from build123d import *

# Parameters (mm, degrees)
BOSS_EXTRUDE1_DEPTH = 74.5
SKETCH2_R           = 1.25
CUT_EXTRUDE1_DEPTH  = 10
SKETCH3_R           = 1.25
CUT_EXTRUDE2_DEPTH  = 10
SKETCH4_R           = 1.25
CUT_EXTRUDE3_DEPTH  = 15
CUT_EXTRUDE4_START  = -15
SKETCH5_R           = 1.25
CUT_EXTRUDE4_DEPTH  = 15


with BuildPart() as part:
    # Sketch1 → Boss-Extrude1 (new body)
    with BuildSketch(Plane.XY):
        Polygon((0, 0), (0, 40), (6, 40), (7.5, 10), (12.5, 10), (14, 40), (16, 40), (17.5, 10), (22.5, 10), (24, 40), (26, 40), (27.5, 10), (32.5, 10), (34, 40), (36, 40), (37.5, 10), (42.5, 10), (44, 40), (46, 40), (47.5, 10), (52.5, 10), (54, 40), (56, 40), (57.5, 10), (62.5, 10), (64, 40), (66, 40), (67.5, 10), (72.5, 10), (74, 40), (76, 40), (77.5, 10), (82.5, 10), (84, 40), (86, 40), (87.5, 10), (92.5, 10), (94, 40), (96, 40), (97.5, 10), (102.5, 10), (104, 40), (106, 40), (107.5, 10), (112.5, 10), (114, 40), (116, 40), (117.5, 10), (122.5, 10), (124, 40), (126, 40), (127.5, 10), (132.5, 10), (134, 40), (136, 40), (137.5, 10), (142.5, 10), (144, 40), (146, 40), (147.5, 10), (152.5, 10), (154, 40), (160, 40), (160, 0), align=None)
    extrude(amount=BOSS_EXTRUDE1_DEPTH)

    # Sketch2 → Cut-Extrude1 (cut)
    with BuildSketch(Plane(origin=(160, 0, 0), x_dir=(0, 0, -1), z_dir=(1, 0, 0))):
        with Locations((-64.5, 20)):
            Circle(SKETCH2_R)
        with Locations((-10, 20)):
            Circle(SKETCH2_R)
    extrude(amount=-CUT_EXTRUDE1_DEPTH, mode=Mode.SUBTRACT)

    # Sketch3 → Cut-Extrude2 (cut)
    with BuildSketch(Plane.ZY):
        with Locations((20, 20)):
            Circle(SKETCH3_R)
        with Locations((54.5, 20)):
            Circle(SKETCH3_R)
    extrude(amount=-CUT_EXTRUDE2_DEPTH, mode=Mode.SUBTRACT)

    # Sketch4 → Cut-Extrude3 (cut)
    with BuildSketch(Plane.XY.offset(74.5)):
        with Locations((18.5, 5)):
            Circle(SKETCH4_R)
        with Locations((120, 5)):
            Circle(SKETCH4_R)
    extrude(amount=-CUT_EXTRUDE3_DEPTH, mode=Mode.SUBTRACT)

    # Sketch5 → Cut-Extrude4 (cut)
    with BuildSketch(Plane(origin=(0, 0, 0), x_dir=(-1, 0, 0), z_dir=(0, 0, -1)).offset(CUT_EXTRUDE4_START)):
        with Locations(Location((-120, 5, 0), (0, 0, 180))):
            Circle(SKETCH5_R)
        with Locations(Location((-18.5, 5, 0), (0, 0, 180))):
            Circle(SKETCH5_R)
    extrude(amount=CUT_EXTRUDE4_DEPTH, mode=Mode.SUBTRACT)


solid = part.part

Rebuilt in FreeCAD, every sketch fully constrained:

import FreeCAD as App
import Part
import Sketcher
from FreeCAD import Vector
Q = App.Units.Quantity


def add_polygon(sketch, points):
    """Adds a closed chain of lines whose ends are joined by coincident constraints."""
    first, n = sketch.GeometryCount, len(points)
    for a, b in zip(points, points[1:] + points[:1]):
        sketch.addGeometry(Part.LineSegment(App.Vector(*a, 0), App.Vector(*b, 0)), False)
    for i in range(n):
        sketch.addConstraint(Sketcher.Constraint("Coincident", first + i, 2, first + (i + 1) % n, 1))

doc = App.newDocument("Part")
body = doc.addObject("PartDesign::Body", "Body")

sketch1 = body.newObject("Sketcher::SketchObject", "Sketch")
sketch1.AttachmentSupport = (doc.getObject("XY_Plane"), [""])
sketch1.MapMode = "FlatFace"
add_polygon(sketch1, [(0, 40), (0, 0), (160, 0), (160, 40), (154, 40), (152.5, 10), (147.5, 10), (146, 40), (144, 40), (142.5, 10), (137.5, 10), (136, 40), (134, 40), (132.5, 10), (127.5, 10), (126, 40), (124, 40), (122.5, 10), (117.5, 10), (116, 40), (114, 40), (112.5, 10), (107.5, 10), (106, 40), (104, 40), (102.5, 10), (97.5, 10), (96, 40), (94, 40), (92.5, 10), (87.5, 10), (86, 40), (84, 40), (82.5, 10), (77.5, 10), (76, 40), (74, 40), (72.5, 10), (67.5, 10), (66, 40), (64, 40), (62.5, 10), (57.5, 10), (56, 40), (54, 40), (52.5, 10), (47.5, 10), (46, 40), (44, 40), (42.5, 10), (37.5, 10), (36, 40), (34, 40), (32.5, 10), (27.5, 10), (26, 40), (24, 40), (22.5, 10), (17.5, 10), (16, 40), (14, 40), (12.5, 10), (7.5, 10), (6, 40)])
sketch1.addConstraint(Sketcher.Constraint("Vertical", 0))
sketch1.addConstraint(Sketcher.Constraint("Horizontal", 1))
sketch1.addConstraint(Sketcher.Constraint("Vertical", 2))
sketch1.addConstraint(Sketcher.Constraint("Horizontal", 3))
sketch1.addConstraint(Sketcher.Constraint("Horizontal", 5))
sketch1.addConstraint(Sketcher.Constraint("Horizontal", 7))
sketch1.addConstraint(Sketcher.Constraint("Horizontal", 9))
sketch1.addConstraint(Sketcher.Constraint("Horizontal", 11))
sketch1.addConstraint(Sketcher.Constraint("Horizontal", 13))
sketch1.addConstraint(Sketcher.Constraint("Horizontal", 15))
sketch1.addConstraint(Sketcher.Constraint("Horizontal", 17))
sketch1.addConstraint(Sketcher.Constraint("Horizontal", 19))
sketch1.addConstraint(Sketcher.Constraint("Horizontal", 21))
sketch1.addConstraint(Sketcher.Constraint("Horizontal", 23))
sketch1.addConstraint(Sketcher.Constraint("Horizontal", 25))
sketch1.addConstraint(Sketcher.Constraint("Horizontal", 27))
sketch1.addConstraint(Sketcher.Constraint("Horizontal", 29))
sketch1.addConstraint(Sketcher.Constraint("Horizontal", 31))
sketch1.addConstraint(Sketcher.Constraint("Horizontal", 33))
sketch1.addConstraint(Sketcher.Constraint("Horizontal", 35))
sketch1.addConstraint(Sketcher.Constraint("Horizontal", 37))
sketch1.addConstraint(Sketcher.Constraint("Horizontal", 39))
sketch1.addConstraint(Sketcher.Constraint("Horizontal", 41))
sketch1.addConstraint(Sketcher.Constraint("Horizontal", 43))
sketch1.addConstraint(Sketcher.Constraint("Horizontal", 45))
sketch1.addConstraint(Sketcher.Constraint("Horizontal", 47))
sketch1.addConstraint(Sketcher.Constraint("Horizontal", 49))
sketch1.addConstraint(Sketcher.Constraint("Horizontal", 51))
sketch1.addConstraint(Sketcher.Constraint("Horizontal", 53))
sketch1.addConstraint(Sketcher.Constraint("Horizontal", 55))
sketch1.addConstraint(Sketcher.Constraint("Horizontal", 57))
sketch1.addConstraint(Sketcher.Constraint("Horizontal", 59))
sketch1.addConstraint(Sketcher.Constraint("Horizontal", 61))
sketch1.addConstraint(Sketcher.Constraint("Horizontal", 63))
sketch1.addConstraint(Sketcher.Constraint("Coincident", 0, 2, -1, 1))
sketch1.addConstraint(Sketcher.Constraint("Parallel", 4, 8))
sketch1.addConstraint(Sketcher.Constraint("Parallel", 6, 10))
sketch1.addConstraint(Sketcher.Constraint("Parallel", 8, 12))
sketch1.addConstraint(Sketcher.Constraint("Parallel", 10, 14))
sketch1.addConstraint(Sketcher.Constraint("Parallel", 12, 16))
sketch1.addConstraint(Sketcher.Constraint("Parallel", 14, 18))
sketch1.addConstraint(Sketcher.Constraint("Parallel", 16, 20))
sketch1.addConstraint(Sketcher.Constraint("Parallel", 18, 22))
sketch1.addConstraint(Sketcher.Constraint("Parallel", 20, 24))
sketch1.addConstraint(Sketcher.Constraint("Parallel", 22, 26))
sketch1.addConstraint(Sketcher.Constraint("Parallel", 24, 28))
sketch1.addConstraint(Sketcher.Constraint("Parallel", 26, 30))
sketch1.addConstraint(Sketcher.Constraint("Parallel", 28, 32))
sketch1.addConstraint(Sketcher.Constraint("Parallel", 30, 34))
sketch1.addConstraint(Sketcher.Constraint("Parallel", 32, 36))
sketch1.addConstraint(Sketcher.Constraint("Parallel", 34, 38))
sketch1.addConstraint(Sketcher.Constraint("Parallel", 36, 40))
sketch1.addConstraint(Sketcher.Constraint("Parallel", 38, 42))
sketch1.addConstraint(Sketcher.Constraint("Parallel", 40, 44))
sketch1.addConstraint(Sketcher.Constraint("Parallel", 42, 46))
sketch1.addConstraint(Sketcher.Constraint("Parallel", 44, 48))
sketch1.addConstraint(Sketcher.Constraint("Parallel", 46, 50))
sketch1.addConstraint(Sketcher.Constraint("Parallel", 48, 52))
sketch1.addConstraint(Sketcher.Constraint("Parallel", 50, 54))
sketch1.addConstraint(Sketcher.Constraint("Parallel", 52, 56))
sketch1.addConstraint(Sketcher.Constraint("Parallel", 54, 58))
sketch1.addConstraint(Sketcher.Constraint("Parallel", 56, 60))
sketch1.addConstraint(Sketcher.Constraint("Parallel", 58, 62))
sketch1.addConstraint(Sketcher.Constraint("Horizontal", 3, 2, 6, 2))
sketch1.addConstraint(Sketcher.Constraint("Horizontal", 5, 2, 8, 2))
sketch1.addConstraint(Sketcher.Constraint("Horizontal", 7, 2, 10, 2))
sketch1.addConstraint(Sketcher.Constraint("Horizontal", 9, 2, 12, 2))
sketch1.addConstraint(Sketcher.Constraint("Horizontal", 11, 2, 14, 2))
sketch1.addConstraint(Sketcher.Constraint("Horizontal", 13, 2, 16, 2))
sketch1.addConstraint(Sketcher.Constraint("Horizontal", 15, 2, 18, 2))
sketch1.addConstraint(Sketcher.Constraint("Horizontal", 17, 2, 20, 2))
sketch1.addConstraint(Sketcher.Constraint("Horizontal", 19, 2, 22, 2))
sketch1.addConstraint(Sketcher.Constraint("Horizontal", 21, 2, 24, 2))
sketch1.addConstraint(Sketcher.Constraint("Horizontal", 23, 2, 26, 2))
sketch1.addConstraint(Sketcher.Constraint("Horizontal", 25, 2, 28, 2))
sketch1.addConstraint(Sketcher.Constraint("Horizontal", 27, 2, 30, 2))
sketch1.addConstraint(Sketcher.Constraint("Horizontal", 29, 2, 32, 2))
sketch1.addConstraint(Sketcher.Constraint("Horizontal", 31, 2, 34, 2))
sketch1.addConstraint(Sketcher.Constraint("Horizontal", 33, 2, 36, 2))
sketch1.addConstraint(Sketcher.Constraint("Horizontal", 35, 2, 38, 2))
sketch1.addConstraint(Sketcher.Constraint("Horizontal", 37, 2, 40, 2))
sketch1.addConstraint(Sketcher.Constraint("Horizontal", 39, 2, 42, 2))
sketch1.addConstraint(Sketcher.Constraint("Horizontal", 41, 2, 44, 2))
sketch1.addConstraint(Sketcher.Constraint("Horizontal", 43, 2, 46, 2))
sketch1.addConstraint(Sketcher.Constraint("Horizontal", 45, 2, 48, 2))
sketch1.addConstraint(Sketcher.Constraint("Horizontal", 47, 2, 50, 2))
sketch1.addConstraint(Sketcher.Constraint("Horizontal", 49, 2, 52, 2))
sketch1.addConstraint(Sketcher.Constraint("Horizontal", 51, 2, 54, 2))
sketch1.addConstraint(Sketcher.Constraint("Horizontal", 53, 2, 56, 2))
sketch1.addConstraint(Sketcher.Constraint("Horizontal", 55, 2, 58, 2))
sketch1.addConstraint(Sketcher.Constraint("Horizontal", 57, 2, 60, 2))
sketch1.addConstraint(Sketcher.Constraint("Horizontal", 59, 2, 62, 2))
sketch1.addConstraint(Sketcher.Constraint("Equal", 5, 9))
sketch1.addConstraint(Sketcher.Constraint("Equal", 7, 11))
sketch1.addConstraint(Sketcher.Constraint("Equal", 9, 13))
sketch1.addConstraint(Sketcher.Constraint("Equal", 11, 15))
sketch1.addConstraint(Sketcher.Constraint("Equal", 13, 17))
sketch1.addConstraint(Sketcher.Constraint("Equal", 15, 19))
sketch1.addConstraint(Sketcher.Constraint("Equal", 17, 21))
sketch1.addConstraint(Sketcher.Constraint("Equal", 19, 23))
sketch1.addConstraint(Sketcher.Constraint("Equal", 21, 25))
sketch1.addConstraint(Sketcher.Constraint("Equal", 23, 27))
sketch1.addConstraint(Sketcher.Constraint("Equal", 25, 29))
sketch1.addConstraint(Sketcher.Constraint("Equal", 27, 31))
sketch1.addConstraint(Sketcher.Constraint("Equal", 29, 33))
sketch1.addConstraint(Sketcher.Constraint("Equal", 31, 35))
sketch1.addConstraint(Sketcher.Constraint("Equal", 33, 37))
sketch1.addConstraint(Sketcher.Constraint("Equal", 35, 39))
sketch1.addConstraint(Sketcher.Constraint("Equal", 37, 41))
sketch1.addConstraint(Sketcher.Constraint("Equal", 39, 43))
sketch1.addConstraint(Sketcher.Constraint("Equal", 41, 45))
sketch1.addConstraint(Sketcher.Constraint("Equal", 43, 47))
sketch1.addConstraint(Sketcher.Constraint("Equal", 45, 49))
sketch1.addConstraint(Sketcher.Constraint("Equal", 47, 51))
sketch1.addConstraint(Sketcher.Constraint("Equal", 49, 53))
sketch1.addConstraint(Sketcher.Constraint("Equal", 51, 55))
sketch1.addConstraint(Sketcher.Constraint("Equal", 53, 57))
sketch1.addConstraint(Sketcher.Constraint("Equal", 55, 59))
sketch1.addConstraint(Sketcher.Constraint("Equal", 57, 61))
sketch1.addConstraint(Sketcher.Constraint("Equal", 3, 63))
sketch1.addConstraint(Sketcher.Constraint("Equal", 4, 6))
sketch1.addConstraint(Sketcher.Constraint("DistanceX", 1, 1, 1, 2, Q("160 mm")))
sketch1.addConstraint(Sketcher.Constraint("DistanceX", 3, 2, 3, 1, Q("6 mm")))
sketch1.addConstraint(Sketcher.Constraint("DistanceX", 5, 2, 5, 1, Q("5 mm")))
sketch1.addConstraint(Sketcher.Constraint("DistanceX", 7, 2, 7, 1, Q("2 mm")))
sketch1.addConstraint(Sketcher.Constraint("DistanceY", 0, 2, 0, 1, Q("40 mm")))
sketch1.addConstraint(Sketcher.Constraint("DistanceY", -1, 1, 4, 2, Q("10 mm")))
pad1 = body.newObject("PartDesign::Pad", "Pad")
pad1.Profile = sketch1
pad1.Length = 74.5

sketch2 = body.newObject("Sketcher::SketchObject", "Sketch001")
sketch2.AttachmentSupport = (doc.getObject("YZ_Plane"), [""])
sketch2.MapMode = "FlatFace"
sketch2.AttachmentOffset = App.Placement(Vector(0, 0, 160), App.Rotation())
sketch2.addGeometry(Part.Circle(Vector(20, 64.5, 0), Vector(0, 0, 1), 1.25), False)
sketch2.addGeometry(Part.Circle(Vector(20, 10, 0), Vector(0, 0, 1), 1.25), False)
sketch2.addConstraint(Sketcher.Constraint("Equal", 0, 1))
sketch2.addConstraint(Sketcher.Constraint("Vertical", 0, 3, 1, 3))
sketch2.addConstraint(Sketcher.Constraint("Diameter", 0, Q("2.5 mm")))
sketch2.addConstraint(Sketcher.Constraint("DistanceX", -1, 1, 0, 3, Q("20 mm")))
sketch2.addConstraint(Sketcher.Constraint("DistanceY", -1, 1, 1, 3, Q("10 mm")))
sketch2.addConstraint(Sketcher.Constraint("DistanceY", -1, 1, 0, 3, Q("64.5 mm")))
pocket1 = body.newObject("PartDesign::Pocket", "Pocket")
pocket1.Profile = sketch2
pocket1.Length = 10

sketch3 = body.newObject("Sketcher::SketchObject", "Sketch002")
sketch3.AttachmentSupport = (doc.getObject("YZ_Plane"), [""])
sketch3.MapMode = "FlatFace"
sketch3.addGeometry(Part.Circle(Vector(20, 20, 0), Vector(0, 0, 1), 1.25), False)
sketch3.addGeometry(Part.Circle(Vector(20, 54.5, 0), Vector(0, 0, 1), 1.25), False)
sketch3.addConstraint(Sketcher.Constraint("Equal", 0, 1))
sketch3.addConstraint(Sketcher.Constraint("Vertical", 0, 3, 1, 3))
sketch3.addConstraint(Sketcher.Constraint("Diameter", 0, Q("2.5 mm")))
sketch3.addConstraint(Sketcher.Constraint("DistanceX", -1, 1, 0, 3, Q("20 mm")))
sketch3.addConstraint(Sketcher.Constraint("DistanceY", -1, 1, 0, 3, Q("20 mm")))
sketch3.addConstraint(Sketcher.Constraint("DistanceY", -1, 1, 1, 3, Q("54.5 mm")))
pocket2 = body.newObject("PartDesign::Pocket", "Pocket001")
pocket2.Profile = sketch3
pocket2.Length = 10
pocket2.Reversed = True

sketch4 = body.newObject("Sketcher::SketchObject", "Sketch003")
sketch4.AttachmentSupport = (doc.getObject("XY_Plane"), [""])
sketch4.MapMode = "FlatFace"
sketch4.AttachmentOffset = App.Placement(Vector(0, 0, 74.5), App.Rotation())
sketch4.addGeometry(Part.Circle(Vector(18.5, 5, 0), Vector(0, 0, 1), 1.25), False)
sketch4.addGeometry(Part.Circle(Vector(120, 5, 0), Vector(0, 0, 1), 1.25), False)
sketch4.addConstraint(Sketcher.Constraint("Equal", 0, 1))
sketch4.addConstraint(Sketcher.Constraint("Horizontal", 0, 3, 1, 3))
sketch4.addConstraint(Sketcher.Constraint("Diameter", 0, Q("2.5 mm")))
sketch4.addConstraint(Sketcher.Constraint("DistanceY", -1, 1, 0, 3, Q("5 mm")))
sketch4.addConstraint(Sketcher.Constraint("DistanceX", -1, 1, 1, 3, Q("120 mm")))
sketch4.addConstraint(Sketcher.Constraint("DistanceX", -1, 1, 0, 3, Q("18.5 mm")))
pocket3 = body.newObject("PartDesign::Pocket", "Pocket002")
pocket3.Profile = sketch4
pocket3.Length = 15

sketch5 = body.newObject("Sketcher::SketchObject", "Sketch004")
sketch5.AttachmentSupport = (doc.getObject("XY_Plane"), [""])
sketch5.MapMode = "FlatFace"
sketch5.AttachmentOffset = App.Placement(Vector(0, 0, 15), App.Rotation())
sketch5.addGeometry(Part.Circle(Vector(120, 5, 0), Vector(0, 0, 1), 1.25), False)
sketch5.addGeometry(Part.Circle(Vector(18.5, 5, 0), Vector(0, 0, 1), 1.25), False)
sketch5.addConstraint(Sketcher.Constraint("Equal", 0, 1))
sketch5.addConstraint(Sketcher.Constraint("Horizontal", 0, 3, 1, 3))
sketch5.addConstraint(Sketcher.Constraint("Diameter", 0, Q("2.5 mm")))
sketch5.addConstraint(Sketcher.Constraint("DistanceX", -1, 1, 0, 3, Q("120 mm")))
sketch5.addConstraint(Sketcher.Constraint("DistanceY", -1, 1, 0, 3, Q("5 mm")))
sketch5.addConstraint(Sketcher.Constraint("DistanceX", -1, 1, 1, 3, Q("18.5 mm")))
pocket4 = body.newObject("PartDesign::Pocket", "Pocket003")
pocket4.Profile = sketch5
pocket4.Length = 15

doc.recompute()
